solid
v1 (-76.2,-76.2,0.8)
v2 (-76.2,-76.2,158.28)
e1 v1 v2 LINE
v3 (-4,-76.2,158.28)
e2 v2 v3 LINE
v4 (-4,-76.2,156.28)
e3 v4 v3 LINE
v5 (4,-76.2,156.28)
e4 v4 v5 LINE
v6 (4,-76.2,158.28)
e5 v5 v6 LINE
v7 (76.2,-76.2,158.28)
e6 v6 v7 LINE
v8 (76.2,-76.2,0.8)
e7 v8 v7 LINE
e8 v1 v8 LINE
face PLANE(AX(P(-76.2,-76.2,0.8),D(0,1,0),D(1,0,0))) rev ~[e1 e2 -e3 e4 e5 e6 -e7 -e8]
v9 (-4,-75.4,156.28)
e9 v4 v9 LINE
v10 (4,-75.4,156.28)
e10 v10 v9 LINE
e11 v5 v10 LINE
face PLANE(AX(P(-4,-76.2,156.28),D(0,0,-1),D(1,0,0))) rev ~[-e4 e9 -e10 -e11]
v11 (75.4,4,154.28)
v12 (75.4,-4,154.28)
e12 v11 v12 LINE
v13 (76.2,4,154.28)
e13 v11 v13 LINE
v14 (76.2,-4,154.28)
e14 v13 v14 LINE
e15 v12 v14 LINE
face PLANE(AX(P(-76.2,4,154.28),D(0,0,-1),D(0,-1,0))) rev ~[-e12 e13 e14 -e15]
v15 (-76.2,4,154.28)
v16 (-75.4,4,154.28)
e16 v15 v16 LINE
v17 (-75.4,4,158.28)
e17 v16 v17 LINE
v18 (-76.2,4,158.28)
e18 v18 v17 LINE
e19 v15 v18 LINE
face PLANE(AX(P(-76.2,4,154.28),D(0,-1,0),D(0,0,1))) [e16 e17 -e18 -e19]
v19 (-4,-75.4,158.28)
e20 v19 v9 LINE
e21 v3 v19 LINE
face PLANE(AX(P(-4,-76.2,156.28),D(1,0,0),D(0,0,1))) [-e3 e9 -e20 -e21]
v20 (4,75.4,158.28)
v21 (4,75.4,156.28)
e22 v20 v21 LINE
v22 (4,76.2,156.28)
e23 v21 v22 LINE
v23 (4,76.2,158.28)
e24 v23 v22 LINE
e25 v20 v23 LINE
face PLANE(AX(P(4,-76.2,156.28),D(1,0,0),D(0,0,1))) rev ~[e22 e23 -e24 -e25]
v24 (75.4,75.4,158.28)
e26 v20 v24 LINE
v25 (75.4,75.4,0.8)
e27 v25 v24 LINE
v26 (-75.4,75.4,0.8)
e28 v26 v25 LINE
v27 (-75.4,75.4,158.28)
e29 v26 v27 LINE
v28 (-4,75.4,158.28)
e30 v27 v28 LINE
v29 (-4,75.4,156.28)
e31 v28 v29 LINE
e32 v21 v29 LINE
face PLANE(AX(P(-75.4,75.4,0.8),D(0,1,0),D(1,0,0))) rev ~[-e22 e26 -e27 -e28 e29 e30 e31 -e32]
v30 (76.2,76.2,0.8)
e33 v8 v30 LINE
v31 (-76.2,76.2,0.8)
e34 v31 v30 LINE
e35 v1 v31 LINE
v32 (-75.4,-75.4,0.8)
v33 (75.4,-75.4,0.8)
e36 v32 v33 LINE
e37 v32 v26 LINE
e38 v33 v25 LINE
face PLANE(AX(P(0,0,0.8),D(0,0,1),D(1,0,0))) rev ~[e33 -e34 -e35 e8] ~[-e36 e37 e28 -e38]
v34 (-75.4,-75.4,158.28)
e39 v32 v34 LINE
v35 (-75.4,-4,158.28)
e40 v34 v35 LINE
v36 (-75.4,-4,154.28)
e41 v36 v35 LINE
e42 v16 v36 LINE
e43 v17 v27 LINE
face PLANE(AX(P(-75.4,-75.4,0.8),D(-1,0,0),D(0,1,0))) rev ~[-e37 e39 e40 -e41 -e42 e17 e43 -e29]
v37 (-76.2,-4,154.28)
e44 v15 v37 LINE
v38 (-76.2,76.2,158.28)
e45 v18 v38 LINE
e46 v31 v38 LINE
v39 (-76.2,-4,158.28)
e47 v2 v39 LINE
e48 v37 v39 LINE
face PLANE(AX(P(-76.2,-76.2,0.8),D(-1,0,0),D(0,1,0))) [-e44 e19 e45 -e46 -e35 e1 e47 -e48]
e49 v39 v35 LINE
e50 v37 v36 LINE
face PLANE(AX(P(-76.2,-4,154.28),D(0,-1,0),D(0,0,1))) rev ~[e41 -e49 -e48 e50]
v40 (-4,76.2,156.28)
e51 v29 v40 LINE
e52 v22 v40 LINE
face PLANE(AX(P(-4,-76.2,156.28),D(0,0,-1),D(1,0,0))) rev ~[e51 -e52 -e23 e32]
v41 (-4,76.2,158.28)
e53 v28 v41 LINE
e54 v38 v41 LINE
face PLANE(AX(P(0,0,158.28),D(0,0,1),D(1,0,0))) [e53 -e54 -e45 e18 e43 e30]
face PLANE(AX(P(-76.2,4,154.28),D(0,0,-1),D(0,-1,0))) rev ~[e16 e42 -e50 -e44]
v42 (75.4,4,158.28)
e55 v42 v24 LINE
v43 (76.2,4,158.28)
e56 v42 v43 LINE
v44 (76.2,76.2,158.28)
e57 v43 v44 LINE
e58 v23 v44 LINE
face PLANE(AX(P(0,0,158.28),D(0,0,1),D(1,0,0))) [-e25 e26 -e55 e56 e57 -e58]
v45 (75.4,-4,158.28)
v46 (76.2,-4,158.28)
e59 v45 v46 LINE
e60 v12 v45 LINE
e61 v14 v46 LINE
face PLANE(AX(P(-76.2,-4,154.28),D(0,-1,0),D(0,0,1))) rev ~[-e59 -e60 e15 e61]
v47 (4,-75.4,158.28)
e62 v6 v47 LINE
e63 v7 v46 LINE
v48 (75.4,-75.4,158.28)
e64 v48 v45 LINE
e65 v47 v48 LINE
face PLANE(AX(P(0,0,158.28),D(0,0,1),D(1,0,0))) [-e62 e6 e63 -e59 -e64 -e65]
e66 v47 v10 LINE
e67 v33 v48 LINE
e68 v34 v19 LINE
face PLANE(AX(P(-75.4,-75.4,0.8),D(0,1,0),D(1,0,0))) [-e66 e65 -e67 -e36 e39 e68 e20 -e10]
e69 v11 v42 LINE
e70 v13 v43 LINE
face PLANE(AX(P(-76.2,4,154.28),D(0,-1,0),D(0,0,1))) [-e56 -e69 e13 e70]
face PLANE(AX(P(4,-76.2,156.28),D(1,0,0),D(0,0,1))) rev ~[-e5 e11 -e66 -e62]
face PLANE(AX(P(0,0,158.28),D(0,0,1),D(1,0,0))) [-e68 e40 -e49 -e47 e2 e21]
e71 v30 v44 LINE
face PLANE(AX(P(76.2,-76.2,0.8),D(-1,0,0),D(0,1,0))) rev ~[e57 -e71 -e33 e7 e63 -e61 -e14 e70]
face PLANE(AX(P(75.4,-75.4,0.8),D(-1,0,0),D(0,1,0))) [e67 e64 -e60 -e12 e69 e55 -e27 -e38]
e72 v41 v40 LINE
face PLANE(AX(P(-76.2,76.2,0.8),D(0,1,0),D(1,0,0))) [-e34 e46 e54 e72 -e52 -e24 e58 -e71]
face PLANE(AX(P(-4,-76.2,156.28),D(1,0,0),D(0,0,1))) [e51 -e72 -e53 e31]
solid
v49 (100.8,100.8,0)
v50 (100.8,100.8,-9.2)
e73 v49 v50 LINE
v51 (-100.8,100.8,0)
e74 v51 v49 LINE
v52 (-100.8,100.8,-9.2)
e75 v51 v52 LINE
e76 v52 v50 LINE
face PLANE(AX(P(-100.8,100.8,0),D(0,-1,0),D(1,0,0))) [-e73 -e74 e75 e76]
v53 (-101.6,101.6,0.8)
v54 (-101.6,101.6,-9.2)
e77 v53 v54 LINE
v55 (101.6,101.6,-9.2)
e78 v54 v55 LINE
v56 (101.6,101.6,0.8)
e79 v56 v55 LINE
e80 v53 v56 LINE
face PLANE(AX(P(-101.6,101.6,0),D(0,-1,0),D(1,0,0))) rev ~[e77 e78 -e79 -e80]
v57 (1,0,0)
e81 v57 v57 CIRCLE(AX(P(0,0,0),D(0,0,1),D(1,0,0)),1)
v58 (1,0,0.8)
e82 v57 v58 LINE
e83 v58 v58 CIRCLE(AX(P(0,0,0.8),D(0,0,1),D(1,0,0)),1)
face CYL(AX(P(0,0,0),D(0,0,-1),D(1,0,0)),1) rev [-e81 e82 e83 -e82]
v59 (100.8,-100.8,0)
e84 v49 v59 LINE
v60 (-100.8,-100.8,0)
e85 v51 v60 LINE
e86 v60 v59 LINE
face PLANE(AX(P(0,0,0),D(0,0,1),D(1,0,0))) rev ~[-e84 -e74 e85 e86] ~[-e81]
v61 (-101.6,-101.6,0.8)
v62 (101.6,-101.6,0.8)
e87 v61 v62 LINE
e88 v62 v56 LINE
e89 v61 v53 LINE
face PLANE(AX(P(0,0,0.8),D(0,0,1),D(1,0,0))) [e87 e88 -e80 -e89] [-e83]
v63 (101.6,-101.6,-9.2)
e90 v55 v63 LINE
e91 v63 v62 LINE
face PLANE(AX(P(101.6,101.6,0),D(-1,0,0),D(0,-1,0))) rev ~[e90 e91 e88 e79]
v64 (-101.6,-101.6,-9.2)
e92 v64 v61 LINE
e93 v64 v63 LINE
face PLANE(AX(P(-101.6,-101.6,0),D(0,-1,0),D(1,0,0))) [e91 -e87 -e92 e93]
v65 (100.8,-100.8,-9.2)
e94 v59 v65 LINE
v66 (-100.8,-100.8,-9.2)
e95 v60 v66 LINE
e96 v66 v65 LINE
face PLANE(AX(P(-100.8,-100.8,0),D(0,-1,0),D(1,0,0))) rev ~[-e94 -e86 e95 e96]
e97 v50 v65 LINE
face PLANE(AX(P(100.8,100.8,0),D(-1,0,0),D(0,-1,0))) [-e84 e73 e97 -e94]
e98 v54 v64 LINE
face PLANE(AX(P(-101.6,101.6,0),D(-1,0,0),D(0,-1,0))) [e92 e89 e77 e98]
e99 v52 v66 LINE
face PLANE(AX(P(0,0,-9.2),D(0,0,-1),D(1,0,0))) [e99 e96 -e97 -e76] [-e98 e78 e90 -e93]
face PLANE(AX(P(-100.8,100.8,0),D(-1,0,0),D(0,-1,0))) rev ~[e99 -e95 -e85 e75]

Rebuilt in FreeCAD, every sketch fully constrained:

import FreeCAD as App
import Part
import Sketcher

doc = App.newDocument("Part")
body = doc.addObject("PartDesign::Body", "Body")

# Sketch on XY plane
sketch1 = body.newObject("Sketcher::SketchObject", "Sketch")
sketch1.AttachmentSupport = (doc.getObject("XY_Plane"), [""])
sketch1.MapMode = "FlatFace"
sketch1.addGeometry(Part.LineSegment(App.Vector(-101.6, 101.6, 0), App.Vector(-101.6, -101.6, 0)), False)
sketch1.addGeometry(Part.LineSegment(App.Vector(-101.6, -101.6, 0), App.Vector(101.6, -101.6, 0)), False)
sketch1.addGeometry(Part.LineSegment(App.Vector(101.6, -101.6, 0), App.Vector(101.6, 101.6, 0)), False)
sketch1.addGeometry(Part.LineSegment(App.Vector(101.6, 101.6, 0), App.Vector(-101.6, 101.6, 0)), False)
sketch1.addGeometry(Part.Circle(App.Vector(0, 0, 0), App.Vector(0, 0, 1), 1), False)
sketch1.addConstraint(Sketcher.Constraint("Coincident", 0, 2, 1, 1))
sketch1.addConstraint(Sketcher.Constraint("Coincident", 1, 2, 2, 1))
sketch1.addConstraint(Sketcher.Constraint("Coincident", 2, 2, 3, 1))
sketch1.addConstraint(Sketcher.Constraint("Coincident", 3, 2, 0, 1))
sketch1.addConstraint(Sketcher.Constraint("Vertical", 0))
sketch1.addConstraint(Sketcher.Constraint("Horizontal", 1))
sketch1.addConstraint(Sketcher.Constraint("Vertical", 2))
sketch1.addConstraint(Sketcher.Constraint("Horizontal", 3))
sketch1.addConstraint(Sketcher.Constraint("Coincident", 4, 3, -1, 1))
sketch1.addConstraint(Sketcher.Constraint("Symmetric", 0, 2, 2, 2, -1, 1))
sketch1.addConstraint(Sketcher.Constraint("Equal", 3, 0))
sketch1.addConstraint(Sketcher.Constraint("Diameter", 4, 2.0))
sketch1.addConstraint(Sketcher.Constraint("DistanceX", 1, 1, 1, 2, 203.2))
pad1 = body.newObject("PartDesign::Pad", "Pad")
pad1.Profile = sketch1
pad1.Length = 0.8

# Sketch on XY plane
sketch2 = body.newObject("Sketcher::SketchObject", "Sketch001")
sketch2.AttachmentSupport = (doc.getObject("XY_Plane"), [""])
sketch2.MapMode = "FlatFace"
sketch2.addGeometry(Part.LineSegment(App.Vector(-102, -102, 0), App.Vector(-102, 102, 0)), False)
sketch2.addGeometry(Part.LineSegment(App.Vector(-102, 102, 0), App.Vector(102, 102, 0)), False)
sketch2.addGeometry(Part.LineSegment(App.Vector(102, 102, 0), App.Vector(102, -102, 0)), False)
sketch2.addGeometry(Part.LineSegment(App.Vector(102, -102, 0), App.Vector(-102, -102, 0)), False)
sketch2.addGeometry(Part.LineSegment(App.Vector(101, 101, 0), App.Vector(-101, 101, 0)), False)
sketch2.addGeometry(Part.LineSegment(App.Vector(-101, 101, 0), App.Vector(-101, -101, 0)), False)
sketch2.addGeometry(Part.LineSegment(App.Vector(-101, -101, 0), App.Vector(101, -101, 0)), False)
sketch2.addGeometry(Part.LineSegment(App.Vector(101, -101, 0), App.Vector(101, 101, 0)), False)
sketch2.addConstraint(Sketcher.Constraint("Coincident", 0, 2, 1, 1))
sketch2.addConstraint(Sketcher.Constraint("Coincident", 1, 2, 2, 1))
sketch2.addConstraint(Sketcher.Constraint("Coincident", 2, 2, 3, 1))
sketch2.addConstraint(Sketcher.Constraint("Coincident", 3, 2, 0, 1))
sketch2.addConstraint(Sketcher.Constraint("Coincident", 4, 2, 5, 1))
sketch2.addConstraint(Sketcher.Constraint("Coincident", 5, 2, 6, 1))
sketch2.addConstraint(Sketcher.Constraint("Coincident", 6, 2, 7, 1))
sketch2.addConstraint(Sketcher.Constraint("Coincident", 7, 2, 4, 1))
sketch2.addConstraint(Sketcher.Constraint("Vertical", 0))
sketch2.addConstraint(Sketcher.Constraint("Horizontal", 1))
sketch2.addConstraint(Sketcher.Constraint("Vertical", 2))
sketch2.addConstraint(Sketcher.Constraint("Horizontal", 3))
sketch2.addConstraint(Sketcher.Constraint("Horizontal", 4))
sketch2.addConstraint(Sketcher.Constraint("Vertical", 5))
sketch2.addConstraint(Sketcher.Constraint("Horizontal", 6))
sketch2.addConstraint(Sketcher.Constraint("Vertical", 7))
sketch2.addConstraint(Sketcher.Constraint("Symmetric", 0, 2, 2, 2, -1, 1))
sketch2.addConstraint(Sketcher.Constraint("Symmetric", 4, 2, 6, 2, -1, 1))
sketch2.addConstraint(Sketcher.Constraint("Equal", 3, 0))
sketch2.addConstraint(Sketcher.Constraint("Equal", 6, 5))
sketch2.addConstraint(Sketcher.Constraint("DistanceX", 1, 1, 1, 2, 203.2))
sketch2.addConstraint(Sketcher.Constraint("DistanceX", 4, 2, 4, 1, 201.6))
pad2 = body.newObject("PartDesign::Pad", "Pad001")
pad2.Profile = sketch2
pad2.Length = 9.2
pad2.Reversed = True
body2 = doc.addObject("PartDesign::Body", "Body001")

# Sketch on XY plane
sketch3 = body2.newObject("Sketcher::SketchObject", "Sketch002")
sketch3.AttachmentSupport = (doc.getObject("XY_Plane001"), [""])
sketch3.MapMode = "FlatFace"
sketch3.AttachmentOffset = App.Placement(App.Vector(0, 0, 0.8), App.Rotation())
sketch3.addGeometry(Part.LineSegment(App.Vector(-76, 76, 0), App.Vector(-76, -76, 0)), False)
sketch3.addGeometry(Part.LineSegment(App.Vector(-76, -76, 0), App.Vector(76, -76, 0)), False)
sketch3.addGeometry(Part.LineSegment(App.Vector(76, -76, 0), App.Vector(76, 76, 0)), False)
sketch3.addGeometry(Part.LineSegment(App.Vector(76, 76, 0), App.Vector(-76, 76, 0)), False)
sketch3.addGeometry(Part.LineSegment(App.Vector(75, -75, 0), App.Vector(-75, -75, 0)), False)
sketch3.addGeometry(Part.LineSegment(App.Vector(-75, -75, 0), App.Vector(-75, 75, 0)), False)
sketch3.addGeometry(Part.LineSegment(App.Vector(-75, 75, 0), App.Vector(75, 75, 0)), False)
sketch3.addGeometry(Part.LineSegment(App.Vector(75, 75, 0), App.Vector(75, -75, 0)), False)
sketch3.addConstraint(Sketcher.Constraint("Coincident", 0, 2, 1, 1))
sketch3.addConstraint(Sketcher.Constraint("Coincident", 1, 2, 2, 1))
sketch3.addConstraint(Sketcher.Constraint("Coincident", 2, 2, 3, 1))
sketch3.addConstraint(Sketcher.Constraint("Coincident", 3, 2, 0, 1))
sketch3.addConstraint(Sketcher.Constraint("Coincident", 4, 2, 5, 1))
sketch3.addConstraint(Sketcher.Constraint("Coincident", 5, 2, 6, 1))
sketch3.addConstraint(Sketcher.Constraint("Coincident", 6, 2, 7, 1))
sketch3.addConstraint(Sketcher.Constraint("Coincident", 7, 2, 4, 1))
sketch3.addConstraint(Sketcher.Constraint("Vertical", 0))
sketch3.addConstraint(Sketcher.Constraint("Horizontal", 1))
sketch3.addConstraint(Sketcher.Constraint("Vertical", 2))
sketch3.addConstraint(Sketcher.Constraint("Horizontal", 3))
sketch3.addConstraint(Sketcher.Constraint("Horizontal", 4))
sketch3.addConstraint(Sketcher.Constraint("Vertical", 5))
sketch3.addConstraint(Sketcher.Constraint("Horizontal", 6))
sketch3.addConstraint(Sketcher.Constraint("Vertical", 7))
sketch3.addConstraint(Sketcher.Constraint("Symmetric", 0, 2, 2, 2, -1, 1))
sketch3.addConstraint(Sketcher.Constraint("Symmetric", 4, 2, 6, 2, -1, 1))
sketch3.addConstraint(Sketcher.Constraint("Equal", 3, 0))
sketch3.addConstraint(Sketcher.Constraint("Equal", 6, 5))
sketch3.addConstraint(Sketcher.Constraint("DistanceX", 1, 1, 1, 2, 152.4))
sketch3.addConstraint(Sketcher.Constraint("DistanceX", 4, 2, 4, 1, 150.8))
pad3 = body2.newObject("PartDesign::Pad", "Pad002")
pad3.Profile = sketch3
pad3.Length = 157.48

# Sketch on XZ plane
sketch4 = body2.newObject("Sketcher::SketchObject", "Sketch003")
sketch4.AttachmentSupport = (doc.getObject("XZ_Plane001"), [""])
sketch4.MapMode = "FlatFace"
sketch4.AttachmentOffset = App.Placement(App.Vector(0, 0, 76.2), App.Rotation())
sketch4.addGeometry(Part.LineSegment(App.Vector(-4, 158.3, 0), App.Vector(-4, 156.3, 0)), False)
sketch4.addGeometry(Part.LineSegment(App.Vector(-4, 156.3, 0), App.Vector(4, 156.3, 0)), False)
sketch4.addGeometry(Part.LineSegment(App.Vector(4, 156.3, 0), App.Vector(4, 158.3, 0)), False)
sketch4.addGeometry(Part.LineSegment(App.Vector(4, 158.3, 0), App.Vector(-4, 158.3, 0)), False)
sketch4.addConstraint(Sketcher.Constraint("Coincident", 0, 2, 1, 1))
sketch4.addConstraint(Sketcher.Constraint("Coincident", 1, 2, 2, 1))
sketch4.addConstraint(Sketcher.Constraint("Coincident", 2, 2, 3, 1))
sketch4.addConstraint(Sketcher.Constraint("Coincident", 3, 2, 0, 1))
sketch4.addConstraint(Sketcher.Constraint("Vertical", 0))
sketch4.addConstraint(Sketcher.Constraint("Horizontal", 1))
sketch4.addConstraint(Sketcher.Constraint("Vertical", 2))
sketch4.addConstraint(Sketcher.Constraint("Horizontal", 3))
sketch4.addConstraint(Sketcher.Constraint("DistanceX", 1, 1, 1, 2, 8.0))
sketch4.addConstraint(Sketcher.Constraint("DistanceY", 0, 2, 0, 1, 2.0))
sketch4.addConstraint(Sketcher.Constraint("DistanceX", 0, 2, -1, 1, 4.0))
sketch4.addConstraint(Sketcher.Constraint("DistanceY", -1, 1, 0, 2, 156.28))
pocket1 = body2.newObject("PartDesign::Pocket", "Pocket")
pocket1.Profile = sketch4
pocket1.Type = "ThroughAll"

# Sketch on YZ plane
sketch5 = body2.newObject("Sketcher::SketchObject", "Sketch004")
sketch5.AttachmentSupport = (doc.getObject("YZ_Plane001"), [""])
sketch5.MapMode = "FlatFace"
sketch5.AttachmentOffset = App.Placement(App.Vector(0, 0, -76.2), App.Rotation())
sketch5.addGeometry(Part.LineSegment(App.Vector(4, 158.3, 0), App.Vector(4, 154.3, 0)), False)
sketch5.addGeometry(Part.LineSegment(App.Vector(4, 154.3, 0), App.Vector(-4, 154.3, 0)), False)
sketch5.addGeometry(Part.LineSegment(App.Vector(-4, 154.3, 0), App.Vector(-4, 158.3, 0)), False)
sketch5.addGeometry(Part.LineSegment(App.Vector(-4, 158.3, 0), App.Vector(4, 158.3, 0)), False)
sketch5.addConstraint(Sketcher.Constraint("Coincident", 0, 2, 1, 1))
sketch5.addConstraint(Sketcher.Constraint("Coincident", 1, 2, 2, 1))
sketch5.addConstraint(Sketcher.Constraint("Coincident", 2, 2, 3, 1))
sketch5.addConstraint(Sketcher.Constraint("Coincident", 3, 2, 0, 1))
sketch5.addConstraint(Sketcher.Constraint("Vertical", 0))
sketch5.addConstraint(Sketcher.Constraint("Horizontal", 1))
sketch5.addConstraint(Sketcher.Constraint("Vertical", 2))
sketch5.addConstraint(Sketcher.Constraint("Horizontal", 3))
sketch5.addConstraint(Sketcher.Constraint("DistanceX", 1, 2, 1, 1, 8.0))
sketch5.addConstraint(Sketcher.Constraint("DistanceY", 0, 2, 0, 1, 4.0))
sketch5.addConstraint(Sketcher.Constraint("DistanceX", -1, 1, 0, 2, 4.0))
sketch5.addConstraint(Sketcher.Constraint("DistanceY", -1, 1, 0, 2, 154.28))
pocket2 = body2.newObject("PartDesign::Pocket", "Pocket001")
pocket2.Profile = sketch5
pocket2.Type = "ThroughAll"
pocket2.Reversed = True

doc.recompute()
